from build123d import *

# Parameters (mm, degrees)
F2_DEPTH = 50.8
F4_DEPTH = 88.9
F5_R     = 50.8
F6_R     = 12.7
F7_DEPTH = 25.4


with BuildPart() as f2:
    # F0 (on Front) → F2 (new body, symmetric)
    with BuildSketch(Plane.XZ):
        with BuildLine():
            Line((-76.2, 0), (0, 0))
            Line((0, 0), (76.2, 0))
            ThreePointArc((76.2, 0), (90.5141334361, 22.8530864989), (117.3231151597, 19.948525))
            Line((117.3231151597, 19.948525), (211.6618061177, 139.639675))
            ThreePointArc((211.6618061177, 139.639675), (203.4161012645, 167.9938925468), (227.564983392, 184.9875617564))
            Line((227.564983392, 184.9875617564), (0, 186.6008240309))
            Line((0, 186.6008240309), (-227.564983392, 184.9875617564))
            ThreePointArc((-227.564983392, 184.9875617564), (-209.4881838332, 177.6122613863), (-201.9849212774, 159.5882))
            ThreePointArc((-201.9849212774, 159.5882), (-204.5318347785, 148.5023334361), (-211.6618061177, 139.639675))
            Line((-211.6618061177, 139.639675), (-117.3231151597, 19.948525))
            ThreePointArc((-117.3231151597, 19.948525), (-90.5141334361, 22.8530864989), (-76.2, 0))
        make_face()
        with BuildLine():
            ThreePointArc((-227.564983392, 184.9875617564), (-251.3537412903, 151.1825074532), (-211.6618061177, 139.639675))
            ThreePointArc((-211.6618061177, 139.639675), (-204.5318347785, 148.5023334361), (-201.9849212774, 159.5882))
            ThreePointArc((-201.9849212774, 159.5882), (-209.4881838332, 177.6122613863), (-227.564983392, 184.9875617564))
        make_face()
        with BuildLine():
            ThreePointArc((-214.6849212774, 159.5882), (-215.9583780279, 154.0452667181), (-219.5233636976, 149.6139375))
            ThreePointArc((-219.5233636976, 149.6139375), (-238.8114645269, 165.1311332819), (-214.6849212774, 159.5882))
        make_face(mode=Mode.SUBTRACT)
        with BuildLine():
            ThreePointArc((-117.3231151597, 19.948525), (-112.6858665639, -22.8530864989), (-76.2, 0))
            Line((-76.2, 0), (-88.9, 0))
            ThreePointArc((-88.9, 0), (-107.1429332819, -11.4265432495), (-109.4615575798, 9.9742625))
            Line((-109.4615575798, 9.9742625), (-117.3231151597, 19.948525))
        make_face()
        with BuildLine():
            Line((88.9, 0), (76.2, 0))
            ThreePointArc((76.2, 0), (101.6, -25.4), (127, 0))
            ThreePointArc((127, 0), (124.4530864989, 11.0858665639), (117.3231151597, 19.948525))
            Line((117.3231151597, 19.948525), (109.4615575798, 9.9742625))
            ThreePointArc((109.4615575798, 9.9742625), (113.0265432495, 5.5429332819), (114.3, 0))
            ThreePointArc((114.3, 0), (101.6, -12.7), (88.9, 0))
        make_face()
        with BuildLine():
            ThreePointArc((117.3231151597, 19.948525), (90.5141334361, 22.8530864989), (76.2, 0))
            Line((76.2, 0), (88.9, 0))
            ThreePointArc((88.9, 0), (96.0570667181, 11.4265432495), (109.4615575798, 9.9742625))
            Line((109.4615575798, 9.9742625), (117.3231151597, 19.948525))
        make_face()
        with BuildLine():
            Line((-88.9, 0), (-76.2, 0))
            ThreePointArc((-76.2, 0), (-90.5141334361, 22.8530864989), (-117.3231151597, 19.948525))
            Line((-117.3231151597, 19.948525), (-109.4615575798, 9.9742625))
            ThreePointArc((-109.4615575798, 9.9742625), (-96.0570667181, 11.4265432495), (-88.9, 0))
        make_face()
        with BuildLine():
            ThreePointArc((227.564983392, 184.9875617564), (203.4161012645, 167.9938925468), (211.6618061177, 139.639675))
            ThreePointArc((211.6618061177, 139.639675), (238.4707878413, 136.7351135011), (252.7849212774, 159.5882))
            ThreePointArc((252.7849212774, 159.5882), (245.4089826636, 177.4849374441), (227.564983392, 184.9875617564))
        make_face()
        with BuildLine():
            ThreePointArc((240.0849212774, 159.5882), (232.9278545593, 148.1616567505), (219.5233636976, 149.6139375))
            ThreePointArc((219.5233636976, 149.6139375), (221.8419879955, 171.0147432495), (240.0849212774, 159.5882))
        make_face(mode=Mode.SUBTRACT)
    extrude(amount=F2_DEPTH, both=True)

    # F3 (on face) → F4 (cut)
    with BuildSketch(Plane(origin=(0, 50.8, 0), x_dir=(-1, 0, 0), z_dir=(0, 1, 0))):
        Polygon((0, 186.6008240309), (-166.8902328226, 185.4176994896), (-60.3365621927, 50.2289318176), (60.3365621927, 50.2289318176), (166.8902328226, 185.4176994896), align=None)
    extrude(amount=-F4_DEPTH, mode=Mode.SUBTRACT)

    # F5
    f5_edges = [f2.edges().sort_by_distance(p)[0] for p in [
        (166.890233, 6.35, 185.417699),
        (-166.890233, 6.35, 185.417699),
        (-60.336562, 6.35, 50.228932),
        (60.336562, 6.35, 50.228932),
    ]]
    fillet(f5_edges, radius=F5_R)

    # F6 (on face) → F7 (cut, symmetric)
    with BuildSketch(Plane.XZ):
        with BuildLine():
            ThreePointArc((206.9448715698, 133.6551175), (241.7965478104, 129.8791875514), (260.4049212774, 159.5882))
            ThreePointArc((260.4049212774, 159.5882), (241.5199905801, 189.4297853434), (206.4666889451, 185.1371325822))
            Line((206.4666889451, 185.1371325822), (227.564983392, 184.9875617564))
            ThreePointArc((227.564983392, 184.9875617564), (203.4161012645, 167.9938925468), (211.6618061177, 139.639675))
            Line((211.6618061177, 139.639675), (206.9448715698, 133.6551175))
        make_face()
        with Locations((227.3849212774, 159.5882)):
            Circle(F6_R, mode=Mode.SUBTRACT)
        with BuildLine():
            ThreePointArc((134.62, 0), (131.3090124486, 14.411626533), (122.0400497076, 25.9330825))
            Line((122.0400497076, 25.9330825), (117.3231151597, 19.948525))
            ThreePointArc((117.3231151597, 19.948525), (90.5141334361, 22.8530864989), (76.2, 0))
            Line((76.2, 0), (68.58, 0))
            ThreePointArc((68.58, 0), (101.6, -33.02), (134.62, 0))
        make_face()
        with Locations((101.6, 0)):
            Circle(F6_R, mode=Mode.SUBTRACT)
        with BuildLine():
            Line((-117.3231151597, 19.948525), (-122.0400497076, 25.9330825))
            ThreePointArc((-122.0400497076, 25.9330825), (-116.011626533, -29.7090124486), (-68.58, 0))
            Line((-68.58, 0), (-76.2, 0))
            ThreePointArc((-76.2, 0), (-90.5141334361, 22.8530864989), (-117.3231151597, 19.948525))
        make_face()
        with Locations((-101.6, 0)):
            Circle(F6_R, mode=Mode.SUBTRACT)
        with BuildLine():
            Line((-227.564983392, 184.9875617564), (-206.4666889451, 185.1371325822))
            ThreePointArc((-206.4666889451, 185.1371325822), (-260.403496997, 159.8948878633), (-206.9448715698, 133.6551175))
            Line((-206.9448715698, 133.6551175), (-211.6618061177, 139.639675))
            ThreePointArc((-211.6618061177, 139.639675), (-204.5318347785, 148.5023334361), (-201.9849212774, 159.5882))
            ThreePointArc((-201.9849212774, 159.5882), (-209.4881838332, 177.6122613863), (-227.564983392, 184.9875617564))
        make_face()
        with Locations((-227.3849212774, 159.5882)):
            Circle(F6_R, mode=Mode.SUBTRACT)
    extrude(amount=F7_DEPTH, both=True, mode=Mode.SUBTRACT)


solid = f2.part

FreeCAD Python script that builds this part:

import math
import FreeCAD as App
import Part
import Sketcher
Q = App.Units.Quantity


def edges_at(feature, points):
    """Names of the edges that pass closest to the given points."""
    edges = feature.Shape.Edges
    near = lambda p: min(range(len(edges)), key=lambda i: edges[i].distToShape(Part.Vertex(*p))[0])
    return sorted({f"Edge{near(p) + 1}" for p in points})


def add_polygon(sketch, points):
    """Adds a closed chain of lines whose ends are joined by coincident constraints."""
    first, n = sketch.GeometryCount, len(points)
    for a, b in zip(points, points[1:] + points[:1]):
        sketch.addGeometry(Part.LineSegment(App.Vector(*a, 0), App.Vector(*b, 0)), False)
    for i in range(n):
        sketch.addConstraint(Sketcher.Constraint("Coincident", first + i, 2, first + (i + 1) % n, 1))

doc = App.newDocument("Part")
body = doc.addObject("PartDesign::Body", "Body")

# Sketch on XZ plane
sketch1 = body.newObject("Sketcher::SketchObject", "Sketch")
sketch1.AttachmentSupport = (doc.getObject("XZ_Plane"), [""])
sketch1.MapMode = "FlatFace"
sketch1.addGeometry(Part.LineSegment(App.Vector(-76, 0, 0), App.Vector(76, 0, 0)), False)
sketch1.addGeometry(Part.ArcOfCircle(Part.Circle(App.Vector(102, 0, 0), App.Vector(0, 0, 1), 25), math.radians(180), math.radians(360)), False)
sketch1.addGeometry(Part.ArcOfCircle(Part.Circle(App.Vector(102, 0, 0), App.Vector(0, 0, 1), 25), math.radians(0), math.radians(52)), False)
sketch1.addGeometry(Part.LineSegment(App.Vector(117, 20, 0), App.Vector(212, 140, 0)), False)
sketch1.addGeometry(Part.ArcOfCircle(Part.Circle(App.Vector(227, 160, 0), App.Vector(0, 0, 1), 25), math.radians(-128), math.radians(90)), False)
sketch1.addGeometry(Part.LineSegment(App.Vector(228, 185, 0), App.Vector(0, 187, 0)), False)
sketch1.addGeometry(Part.LineSegment(App.Vector(0, 187, 0), App.Vector(-228, 185, 0)), False)
sketch1.addGeometry(Part.ArcOfCircle(Part.Circle(App.Vector(-227, 160, 0), App.Vector(0, 0, 1), 25), math.radians(90), math.radians(308)), False)
sketch1.addGeometry(Part.LineSegment(App.Vector(-212, 140, 0), App.Vector(-117, 20, 0)), False)
sketch1.addGeometry(Part.ArcOfCircle(Part.Circle(App.Vector(-102, 0, 0), App.Vector(0, 0, 1), 25), math.radians(128), math.radians(360)), False)
sketch1.addGeometry(Part.ArcOfCircle(Part.Circle(App.Vector(-102, 0, 0), App.Vector(0, 0, 1), 13), math.radians(0), math.radians(128)), False)
sketch1.addGeometry(Part.ArcOfCircle(Part.Circle(App.Vector(-102, 0, 0), App.Vector(0, 0, 1), 13), math.radians(128), math.radians(360)), False)
sketch1.addGeometry(Part.ArcOfCircle(Part.Circle(App.Vector(102, 0, 0), App.Vector(0, 0, 1), 13), math.radians(52), math.radians(180)), False)
sketch1.addGeometry(Part.ArcOfCircle(Part.Circle(App.Vector(102, 0, 0), App.Vector(0, 0, 1), 13), math.radians(0), math.radians(52)), False)
sketch1.addGeometry(Part.ArcOfCircle(Part.Circle(App.Vector(102, 0, 0), App.Vector(0, 0, 1), 13), math.radians(180), math.radians(360)), False)
sketch1.addGeometry(Part.ArcOfCircle(Part.Circle(App.Vector(-227, 160, 0), App.Vector(0, 0, 1), 13), math.radians(0), math.radians(308)), False)
sketch1.addGeometry(Part.ArcOfCircle(Part.Circle(App.Vector(-227, 160, 0), App.Vector(0, 0, 1), 13), math.radians(-52), math.radians(0)), False)
sketch1.addGeometry(Part.ArcOfCircle(Part.Circle(App.Vector(227, 160, 0), App.Vector(0, 0, 1), 13), math.radians(0), math.radians(232)), False)
sketch1.addGeometry(Part.ArcOfCircle(Part.Circle(App.Vector(227, 160, 0), App.Vector(0, 0, 1), 13), math.radians(-128), math.radians(0)), False)
sketch1.addConstraint(Sketcher.Constraint("Coincident", 0, 2, 1, 1))
sketch1.addConstraint(Sketcher.Constraint("Tangent", 1, 2, 2, 1))
sketch1.addConstraint(Sketcher.Constraint("Coincident", 2, 2, 3, 1))
sketch1.addConstraint(Sketcher.Constraint("Coincident", 3, 2, 4, 1))
sketch1.addConstraint(Sketcher.Constraint("Tangent", 4, 2, 5, 1))
sketch1.addConstraint(Sketcher.Constraint("Coincident", 5, 2, 6, 1))
sketch1.addConstraint(Sketcher.Constraint("Tangent", 6, 2, 7, 1))
sketch1.addConstraint(Sketcher.Constraint("Coincident", 7, 2, 8, 1))
sketch1.addConstraint(Sketcher.Constraint("Coincident", 8, 2, 9, 1))
sketch1.addConstraint(Sketcher.Constraint("Coincident", 9, 2, 0, 1))
sketch1.addConstraint(Sketcher.Constraint("Tangent", 10, 1, 11, 2))
sketch1.addConstraint(Sketcher.Constraint("Coincident", 11, 1, 10, 2))
sketch1.addConstraint(Sketcher.Constraint("Tangent", 12, 1, 13, 2))
sketch1.addConstraint(Sketcher.Constraint("Tangent", 13, 1, 14, 2))
sketch1.addConstraint(Sketcher.Constraint("Tangent", 14, 1, 12, 2))
sketch1.addConstraint(Sketcher.Constraint("Tangent", 15, 1, 16, 2))
sketch1.addConstraint(Sketcher.Constraint("Coincident", 16, 1, 15, 2))
sketch1.addConstraint(Sketcher.Constraint("Tangent", 17, 1, 18, 2))
sketch1.addConstraint(Sketcher.Constraint("Coincident", 18, 1, 17, 2))
sketch1.addConstraint(Sketcher.Constraint("Horizontal", 0))
sketch1.addConstraint(Sketcher.Constraint("Coincident", 10, 3, 9, 3))
sketch1.addConstraint(Sketcher.Constraint("Coincident", 12, 3, 1, 3))
sketch1.addConstraint(Sketcher.Constraint("Coincident", 15, 3, 7, 3))
sketch1.addConstraint(Sketcher.Constraint("Coincident", 17, 3, 4, 3))
sketch1.addConstraint(Sketcher.Constraint("Equal", 1, 2))
sketch1.addConstraint(Sketcher.Constraint("Equal", 2, 4))
sketch1.addConstraint(Sketcher.Constraint("Equal", 4, 7))
sketch1.addConstraint(Sketcher.Constraint("Equal", 7, 9))
sketch1.addConstraint(Sketcher.Constraint("Equal", 11, 12))
sketch1.addConstraint(Sketcher.Constraint("Equal", 14, 15))
sketch1.addConstraint(Sketcher.Constraint("Equal", 16, 17))
sketch1.addConstraint(Sketcher.Constraint("Symmetric", 1, 3, 9, 3, -1, 1))
sketch1.addConstraint(Sketcher.Constraint("Symmetric", 4, 3, 7, 3, -2))
sketch1.addConstraint(Sketcher.Constraint("Symmetric", 2, 2, 8, 2, -2))
sketch1.addConstraint(Sketcher.Constraint("PointOnObject", 0, 2, -1))
sketch1.addConstraint(Sketcher.Constraint("PointOnObject", 1, 2, -1))
sketch1.addConstraint(Sketcher.Constraint("PointOnObject", 5, 2, -2))
sketch1.addConstraint(Sketcher.Constraint("PointOnObject", 10, 1, -1))
sketch1.addConstraint(Sketcher.Constraint("PointOnObject", 13, 1, -1))
sketch1.addConstraint(Sketcher.Constraint("PointOnObject", 14, 1, -1))
sketch1.addConstraint(Sketcher.Constraint("Horizontal", 3, 2, 7, 2))
sketch1.addConstraint(Sketcher.Constraint("Horizontal", 11, 1, 12, 1))
sketch1.addConstraint(Sketcher.Constraint("Horizontal", 18, 3, 15, 1))
sketch1.addConstraint(Sketcher.Constraint("Horizontal", 15, 1, 17, 1))
sketch1.addConstraint(Sketcher.Constraint("Horizontal", 16, 1, 18, 1))
sketch1.addConstraint(Sketcher.Constraint("Radius", 1, Q("1 in")))
sketch1.addConstraint(Sketcher.Constraint("Radius", 10, Q("0.5 in")))
sketch1.addConstraint(Sketcher.Constraint("DistanceX", 0, 1, 0, 2, Q("6 in")))
sketch1.addConstraint(Sketcher.Constraint("Distance", 3, Q("6 in")))
sketch1.addConstraint(Sketcher.Constraint("DistanceY", -1, 1, 4, 3, Q("6.283 in")))
sketch1.addConstraint(Sketcher.Constraint("DistanceY", 2, 2, 4, 2, Q("6.4975999 in")))
sketch1.addConstraint(Sketcher.Constraint("Distance", 5, Q("227.570702 mm")))
sketch1.addConstraint(Sketcher.Constraint("DistanceX", 2, 2, 3, 2, Q("94.338691 mm")))
sketch1.addConstraint(Sketcher.Constraint("DistanceX", 11, 1, -1, 1, Q("109.461558 mm")))
sketch1.addConstraint(Sketcher.Constraint("DistanceX", 16, 1, -1, 1, Q("219.523364 mm")))
pad1 = body.newObject("PartDesign::Pad", "Pad")
pad1.Profile = sketch1
pad1.Length = Q("4 in")
pad1.Midplane = True

# Sketch on XZ plane
sketch2 = body.newObject("Sketcher::SketchObject", "Sketch001")
sketch2.AttachmentSupport = (doc.getObject("XZ_Plane"), [""])
sketch2.MapMode = "FlatFace"
sketch2.AttachmentOffset = App.Placement(App.Vector(0, 0, -2 * 25.4), App.Rotation())
add_polygon(sketch2, [(0, 186.600824), (166.890233, 185.417699), (60.336562, 50.228932), (-60.336562, 50.228932), (-166.890233, 185.417699)])  # lines 0-4
sketch2.addConstraint(Sketcher.Constraint("Horizontal", 2))
sketch2.addConstraint(Sketcher.Constraint("Symmetric", 0, 2, 3, 2, -2))
sketch2.addConstraint(Sketcher.Constraint("PointOnObject", 4, 2, -2))
sketch2.addConstraint(Sketcher.Constraint("Equal", 1, 3))
sketch2.addConstraint(Sketcher.Constraint("DistanceY", -1, 1, 0, 2, Q("185.417699 mm")))
sketch2.addConstraint(Sketcher.Constraint("Distance", 1, Q("172.132762 mm")))
sketch2.addConstraint(Sketcher.Constraint("DistanceX", 2, 2, 2, 1, Q("120.673124 mm")))
sketch2.addConstraint(Sketcher.Constraint("DistanceY", -1, 1, 1, 2, Q("50.228932 mm")))
sketch2.addConstraint(Sketcher.Constraint("Distance", 0, Q("166.894426 mm")))
pocket1 = body.newObject("PartDesign::Pocket", "Pocket")
pocket1.Profile = sketch2
pocket1.Length = Q("3.5 in")
pocket1.Reversed = True
doc.recompute()

fillet = body.newObject("PartDesign::Fillet", "Fillet")
fillet.Base = (pocket1, edges_at(pocket1, [
    (166.89, 6.35, 185.418),
    (-166.89, 6.35, 185.418),
    (-60.337, 6.35, 50.229),
    (60.337, 6.35, 50.229),
]))
fillet.Radius = Q("2 in")

# Sketch on XZ plane
sketch3 = body.newObject("Sketcher::SketchObject", "Sketch002")
sketch3.AttachmentSupport = (doc.getObject("XZ_Plane"), [""])
sketch3.MapMode = "FlatFace"
sketch3.addGeometry(Part.ArcOfCircle(Part.Circle(App.Vector(227, 160, 0), App.Vector(0, 0, 1), 33), math.radians(-128), math.radians(0)), False)
sketch3.addGeometry(Part.ArcOfCircle(Part.Circle(App.Vector(227, 160, 0), App.Vector(0, 0, 1), 33), math.radians(0), math.radians(129)), False)
sketch3.addGeometry(Part.LineSegment(App.Vector(206, 185, 0), App.Vector(228, 185, 0)), False)
sketch3.addGeometry(Part.ArcOfCircle(Part.Circle(App.Vector(227, 160, 0), App.Vector(0, 0, 1), 25), math.radians(90), math.radians(232)), False)
sketch3.addGeometry(Part.LineSegment(App.Vector(212, 140, 0), App.Vector(207, 134, 0)), False)
sketch3.addGeometry(Part.Circle(App.Vector(227, 160, 0), App.Vector(0, 0, 1), 13), False)
sketch3.addGeometry(Part.ArcOfCircle(Part.Circle(App.Vector(102, 0, 0), App.Vector(0, 0, 1), 33), math.radians(0), math.radians(52)), False)
sketch3.addGeometry(Part.LineSegment(App.Vector(122, 26, 0), App.Vector(117, 20, 0)), False)
sketch3.addGeometry(Part.ArcOfCircle(Part.Circle(App.Vector(102, 0, 0), App.Vector(0, 0, 1), 25), math.radians(52), math.radians(180)), False)
sketch3.addGeometry(Part.LineSegment(App.Vector(76, 0, 0), App.Vector(69, 0, 0)), False)
sketch3.addGeometry(Part.ArcOfCircle(Part.Circle(App.Vector(102, 0, 0), App.Vector(0, 0, 1), 33), math.radians(180), math.radians(360)), False)
sketch3.addGeometry(Part.Circle(App.Vector(102, 0, 0), App.Vector(0, 0, 1), 13), False)
sketch3.addGeometry(Part.LineSegment(App.Vector(-117, 20, 0), App.Vector(-122, 26, 0)), False)
sketch3.addGeometry(Part.ArcOfCircle(Part.Circle(App.Vector(-102, 0, 0), App.Vector(0, 0, 1), 33), math.radians(128), math.radians(360)), False)
sketch3.addGeometry(Part.LineSegment(App.Vector(-69, 0, 0), App.Vector(-76, 0, 0)), False)
sketch3.addGeometry(Part.ArcOfCircle(Part.Circle(App.Vector(-102, 0, 0), App.Vector(0, 0, 1), 25), math.radians(0), math.radians(128)), False)
sketch3.addGeometry(Part.Circle(App.Vector(-102, 0, 0), App.Vector(0, 0, 1), 13), False)
sketch3.addGeometry(Part.LineSegment(App.Vector(-228, 185, 0), App.Vector(-206, 185, 0)), False)
sketch3.addGeometry(Part.ArcOfCircle(Part.Circle(App.Vector(-227, 160, 0), App.Vector(0, 0, 1), 33), math.radians(51), math.radians(308)), False)
sketch3.addGeometry(Part.LineSegment(App.Vector(-207, 134, 0), App.Vector(-212, 140, 0)), False)
sketch3.addGeometry(Part.ArcOfCircle(Part.Circle(App.Vector(-227, 160, 0), App.Vector(0, 0, 1), 25), math.radians(-52), math.radians(0)), False)
sketch3.addGeometry(Part.ArcOfCircle(Part.Circle(App.Vector(-227, 160, 0), App.Vector(0, 0, 1), 25), math.radians(0), math.radians(90)), False)
sketch3.addGeometry(Part.Circle(App.Vector(-227, 160, 0), App.Vector(0, 0, 1), 13), False)
sketch3.addConstraint(Sketcher.Constraint("Tangent", 0, 2, 1, 1))
sketch3.addConstraint(Sketcher.Constraint("Coincident", 1, 2, 2, 1))
sketch3.addConstraint(Sketcher.Constraint("Tangent", 2, 2, 3, 1))
sketch3.addConstraint(Sketcher.Constraint("Coincident", 3, 2, 4, 1))
sketch3.addConstraint(Sketcher.Constraint("Coincident", 4, 2, 0, 1))
sketch3.addConstraint(Sketcher.Constraint("Coincident", 6, 2, 7, 1))
sketch3.addConstraint(Sketcher.Constraint("Coincident", 7, 2, 8, 1))
sketch3.addConstraint(Sketcher.Constraint("Coincident", 8, 2, 9, 1))
sketch3.addConstraint(Sketcher.Constraint("Coincident", 9, 2, 10, 1))
sketch3.addConstraint(Sketcher.Constraint("Tangent", 10, 2, 6, 1))
sketch3.addConstraint(Sketcher.Constraint("Coincident", 12, 2, 13, 1))
sketch3.addConstraint(Sketcher.Constraint("Coincident", 13, 2, 14, 1))
sketch3.addConstraint(Sketcher.Constraint("Coincident", 14, 2, 15, 1))
sketch3.addConstraint(Sketcher.Constraint("Coincident", 15, 2, 12, 1))
sketch3.addConstraint(Sketcher.Constraint("Coincident", 17, 2, 18, 1))
sketch3.addConstraint(Sketcher.Constraint("Coincident", 18, 2, 19, 1))
sketch3.addConstraint(Sketcher.Constraint("Coincident", 19, 2, 20, 1))
sketch3.addConstraint(Sketcher.Constraint("Tangent", 20, 2, 21, 1))
sketch3.addConstraint(Sketcher.Constraint("Tangent", 21, 2, 17, 1))
sketch3.addConstraint(Sketcher.Constraint("Horizontal", 9))
sketch3.addConstraint(Sketcher.Constraint("Horizontal", 14))
sketch3.addConstraint(Sketcher.Constraint("Coincident", 3, 3, 0, 3))
sketch3.addConstraint(Sketcher.Constraint("Coincident", 5, 3, 0, 3))
sketch3.addConstraint(Sketcher.Constraint("Coincident", 8, 3, 6, 3))
sketch3.addConstraint(Sketcher.Constraint("Coincident", 11, 3, 6, 3))
sketch3.addConstraint(Sketcher.Constraint("Coincident", 15, 3, 13, 3))
sketch3.addConstraint(Sketcher.Constraint("Coincident", 16, 3, 13, 3))
sketch3.addConstraint(Sketcher.Constraint("Coincident", 20, 3, 18, 3))
sketch3.addConstraint(Sketcher.Constraint("Coincident", 22, 3, 18, 3))
sketch3.addConstraint(Sketcher.Constraint("Equal", 0, 1))
sketch3.addConstraint(Sketcher.Constraint("Equal", 1, 6))
sketch3.addConstraint(Sketcher.Constraint("Equal", 3, 8))
sketch3.addConstraint(Sketcher.Constraint("Equal", 6, 10))
sketch3.addConstraint(Sketcher.Constraint("Equal", 5, 11))
sketch3.addConstraint(Sketcher.Constraint("Equal", 10, 13))
sketch3.addConstraint(Sketcher.Constraint("Equal", 8, 15))
sketch3.addConstraint(Sketcher.Constraint("Equal", 11, 16))
sketch3.addConstraint(Sketcher.Constraint("Equal", 13, 18))
sketch3.addConstraint(Sketcher.Constraint("Equal", 15, 20))
sketch3.addConstraint(Sketcher.Constraint("Equal", 20, 21))
sketch3.addConstraint(Sketcher.Constraint("Equal", 16, 22))
sketch3.addConstraint(Sketcher.Constraint("Symmetric", 6, 3, 13, 3, -1, 1))
sketch3.addConstraint(Sketcher.Constraint("Symmetric", 0, 3, 18, 3, -2))
sketch3.addConstraint(Sketcher.Constraint("Symmetric", 6, 2, 12, 2, -2))
sketch3.addConstraint(Sketcher.Constraint("PointOnObject", 8, 2, -1))
sketch3.addConstraint(Sketcher.Constraint("PointOnObject", 10, 2, -1))
sketch3.addConstraint(Sketcher.Constraint("PointOnObject", 13, 2, -1))
sketch3.addConstraint(Sketcher.Constraint("Parallel", 4, 7))
sketch3.addConstraint(Sketcher.Constraint("Parallel", 12, 19))
sketch3.addConstraint(Sketcher.Constraint("Horizontal", 22, 3, 0, 2))
sketch3.addConstraint(Sketcher.Constraint("Horizontal", 7, 2, 15, 2))
sketch3.addConstraint(Sketcher.Constraint("Horizontal", 1, 2, 17, 2))
sketch3.addConstraint(Sketcher.Constraint("Horizontal", 4, 2, 18, 2))
sketch3.addConstraint(Sketcher.Constraint("Horizontal", 0, 2, 20, 2))
sketch3.addConstraint(Sketcher.Constraint("Diameter", 5, Q("1 in")))
sketch3.addConstraint(Sketcher.Constraint("Radius", 3, Q("1 in")))
sketch3.addConstraint(Sketcher.Constraint("Radius", 0, Q("1.3 in")))
sketch3.addConstraint(Sketcher.Constraint("DistanceX", -1, 1, 6, 3, Q("4 in")))
sketch3.addConstraint(Sketcher.Constraint("DistanceY", -1, 1, 0, 3, Q("6.283 in")))
sketch3.addConstraint(Sketcher.Constraint("DistanceX", -1, 1, 0, 3, Q("227.384921 mm")))
sketch3.addConstraint(Sketcher.Constraint("DistanceX", -1, 1, 1, 2, Q("206.466689 mm")))
sketch3.addConstraint(Sketcher.Constraint("DistanceX", -1, 1, 4, 2, Q("206.944872 mm")))
sketch3.addConstraint(Sketcher.Constraint("DistanceX", -1, 1, 6, 2, Q("122.04005 mm")))
sketch3.addConstraint(Sketcher.Constraint("DistanceX", -1, 1, 3, 2, Q("211.661806 mm")))
pocket2 = body.newObject("PartDesign::Pocket", "Pocket001")
pocket2.Profile = sketch3
pocket2.Length = Q("2 in")
pocket2.Midplane = True

doc.recompute()
